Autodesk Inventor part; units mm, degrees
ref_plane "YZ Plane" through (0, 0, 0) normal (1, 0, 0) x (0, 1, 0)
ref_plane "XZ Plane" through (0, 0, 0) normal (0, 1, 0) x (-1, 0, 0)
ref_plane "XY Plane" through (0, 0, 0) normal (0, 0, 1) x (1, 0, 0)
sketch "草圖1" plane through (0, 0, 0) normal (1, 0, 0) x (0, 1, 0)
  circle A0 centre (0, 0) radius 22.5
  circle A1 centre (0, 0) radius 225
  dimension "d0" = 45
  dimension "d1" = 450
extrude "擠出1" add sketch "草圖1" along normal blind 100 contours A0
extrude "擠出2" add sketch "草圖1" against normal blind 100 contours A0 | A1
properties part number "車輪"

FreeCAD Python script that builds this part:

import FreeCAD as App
import Part
import Sketcher

doc = App.newDocument("Part")
params = doc.addObject("Spreadsheet::Sheet", "Params")
for row, (alias, value) in enumerate([
    ("sketch1_diameter", "45 mm"),
    ("pad1_length", "100 mm"),
    ("sketch2_diameter", "450 mm"),
    ("pad2_length", "100 mm"),
], start=1):
    params.set(f"A{row}", alias)
    params.set(f"B{row}", "=" + value)
    params.setAlias(f"B{row}", alias)

body = doc.addObject("PartDesign::Body", "Body")

# Sketch on YZ plane
sketch1 = doc.addObject("Sketcher::SketchObject", "Sketch")
body.addObject(sketch1)
sketch1.AttachmentSupport = (doc.YZ_Plane, [""])
sketch1.MapMode = "FlatFace"
sketch1.addGeometry(Part.Circle(App.Vector(0, 0, 0), App.Vector(0, 0, 1), 22), False)
sketch1.addConstraint([
    Sketcher.Constraint("Coincident", 0, 3, -1, 1),
    Sketcher.Constraint("Diameter", 0, 45.0),
])
sketch1.setExpression("Constraints[1]", "Params.sketch1_diameter")
pad1 = doc.addObject("PartDesign::Pad", "Pad")
body.addObject(pad1)
pad1.Profile = sketch1
pad1.setExpression("Length", "Params.pad1_length")

# Sketch on YZ plane
sketch2 = doc.addObject("Sketcher::SketchObject", "Sketch001")
body.addObject(sketch2)
sketch2.AttachmentSupport = (doc.YZ_Plane, [""])
sketch2.MapMode = "FlatFace"
sketch2.addGeometry(Part.Circle(App.Vector(0, 0, 0), App.Vector(0, 0, 1), 225), False)
sketch2.addConstraint([
    Sketcher.Constraint("Coincident", 0, 3, -1, 1),
    Sketcher.Constraint("Diameter", 0, 450.0),
])
sketch2.setExpression("Constraints[1]", "Params.sketch2_diameter")
pad2 = doc.addObject("PartDesign::Pad", "Pad001")
body.addObject(pad2)
pad2.Profile = sketch2
pad2.setExpression("Length", "Params.pad2_length")
pad2.Reversed = True

doc.recompute()
